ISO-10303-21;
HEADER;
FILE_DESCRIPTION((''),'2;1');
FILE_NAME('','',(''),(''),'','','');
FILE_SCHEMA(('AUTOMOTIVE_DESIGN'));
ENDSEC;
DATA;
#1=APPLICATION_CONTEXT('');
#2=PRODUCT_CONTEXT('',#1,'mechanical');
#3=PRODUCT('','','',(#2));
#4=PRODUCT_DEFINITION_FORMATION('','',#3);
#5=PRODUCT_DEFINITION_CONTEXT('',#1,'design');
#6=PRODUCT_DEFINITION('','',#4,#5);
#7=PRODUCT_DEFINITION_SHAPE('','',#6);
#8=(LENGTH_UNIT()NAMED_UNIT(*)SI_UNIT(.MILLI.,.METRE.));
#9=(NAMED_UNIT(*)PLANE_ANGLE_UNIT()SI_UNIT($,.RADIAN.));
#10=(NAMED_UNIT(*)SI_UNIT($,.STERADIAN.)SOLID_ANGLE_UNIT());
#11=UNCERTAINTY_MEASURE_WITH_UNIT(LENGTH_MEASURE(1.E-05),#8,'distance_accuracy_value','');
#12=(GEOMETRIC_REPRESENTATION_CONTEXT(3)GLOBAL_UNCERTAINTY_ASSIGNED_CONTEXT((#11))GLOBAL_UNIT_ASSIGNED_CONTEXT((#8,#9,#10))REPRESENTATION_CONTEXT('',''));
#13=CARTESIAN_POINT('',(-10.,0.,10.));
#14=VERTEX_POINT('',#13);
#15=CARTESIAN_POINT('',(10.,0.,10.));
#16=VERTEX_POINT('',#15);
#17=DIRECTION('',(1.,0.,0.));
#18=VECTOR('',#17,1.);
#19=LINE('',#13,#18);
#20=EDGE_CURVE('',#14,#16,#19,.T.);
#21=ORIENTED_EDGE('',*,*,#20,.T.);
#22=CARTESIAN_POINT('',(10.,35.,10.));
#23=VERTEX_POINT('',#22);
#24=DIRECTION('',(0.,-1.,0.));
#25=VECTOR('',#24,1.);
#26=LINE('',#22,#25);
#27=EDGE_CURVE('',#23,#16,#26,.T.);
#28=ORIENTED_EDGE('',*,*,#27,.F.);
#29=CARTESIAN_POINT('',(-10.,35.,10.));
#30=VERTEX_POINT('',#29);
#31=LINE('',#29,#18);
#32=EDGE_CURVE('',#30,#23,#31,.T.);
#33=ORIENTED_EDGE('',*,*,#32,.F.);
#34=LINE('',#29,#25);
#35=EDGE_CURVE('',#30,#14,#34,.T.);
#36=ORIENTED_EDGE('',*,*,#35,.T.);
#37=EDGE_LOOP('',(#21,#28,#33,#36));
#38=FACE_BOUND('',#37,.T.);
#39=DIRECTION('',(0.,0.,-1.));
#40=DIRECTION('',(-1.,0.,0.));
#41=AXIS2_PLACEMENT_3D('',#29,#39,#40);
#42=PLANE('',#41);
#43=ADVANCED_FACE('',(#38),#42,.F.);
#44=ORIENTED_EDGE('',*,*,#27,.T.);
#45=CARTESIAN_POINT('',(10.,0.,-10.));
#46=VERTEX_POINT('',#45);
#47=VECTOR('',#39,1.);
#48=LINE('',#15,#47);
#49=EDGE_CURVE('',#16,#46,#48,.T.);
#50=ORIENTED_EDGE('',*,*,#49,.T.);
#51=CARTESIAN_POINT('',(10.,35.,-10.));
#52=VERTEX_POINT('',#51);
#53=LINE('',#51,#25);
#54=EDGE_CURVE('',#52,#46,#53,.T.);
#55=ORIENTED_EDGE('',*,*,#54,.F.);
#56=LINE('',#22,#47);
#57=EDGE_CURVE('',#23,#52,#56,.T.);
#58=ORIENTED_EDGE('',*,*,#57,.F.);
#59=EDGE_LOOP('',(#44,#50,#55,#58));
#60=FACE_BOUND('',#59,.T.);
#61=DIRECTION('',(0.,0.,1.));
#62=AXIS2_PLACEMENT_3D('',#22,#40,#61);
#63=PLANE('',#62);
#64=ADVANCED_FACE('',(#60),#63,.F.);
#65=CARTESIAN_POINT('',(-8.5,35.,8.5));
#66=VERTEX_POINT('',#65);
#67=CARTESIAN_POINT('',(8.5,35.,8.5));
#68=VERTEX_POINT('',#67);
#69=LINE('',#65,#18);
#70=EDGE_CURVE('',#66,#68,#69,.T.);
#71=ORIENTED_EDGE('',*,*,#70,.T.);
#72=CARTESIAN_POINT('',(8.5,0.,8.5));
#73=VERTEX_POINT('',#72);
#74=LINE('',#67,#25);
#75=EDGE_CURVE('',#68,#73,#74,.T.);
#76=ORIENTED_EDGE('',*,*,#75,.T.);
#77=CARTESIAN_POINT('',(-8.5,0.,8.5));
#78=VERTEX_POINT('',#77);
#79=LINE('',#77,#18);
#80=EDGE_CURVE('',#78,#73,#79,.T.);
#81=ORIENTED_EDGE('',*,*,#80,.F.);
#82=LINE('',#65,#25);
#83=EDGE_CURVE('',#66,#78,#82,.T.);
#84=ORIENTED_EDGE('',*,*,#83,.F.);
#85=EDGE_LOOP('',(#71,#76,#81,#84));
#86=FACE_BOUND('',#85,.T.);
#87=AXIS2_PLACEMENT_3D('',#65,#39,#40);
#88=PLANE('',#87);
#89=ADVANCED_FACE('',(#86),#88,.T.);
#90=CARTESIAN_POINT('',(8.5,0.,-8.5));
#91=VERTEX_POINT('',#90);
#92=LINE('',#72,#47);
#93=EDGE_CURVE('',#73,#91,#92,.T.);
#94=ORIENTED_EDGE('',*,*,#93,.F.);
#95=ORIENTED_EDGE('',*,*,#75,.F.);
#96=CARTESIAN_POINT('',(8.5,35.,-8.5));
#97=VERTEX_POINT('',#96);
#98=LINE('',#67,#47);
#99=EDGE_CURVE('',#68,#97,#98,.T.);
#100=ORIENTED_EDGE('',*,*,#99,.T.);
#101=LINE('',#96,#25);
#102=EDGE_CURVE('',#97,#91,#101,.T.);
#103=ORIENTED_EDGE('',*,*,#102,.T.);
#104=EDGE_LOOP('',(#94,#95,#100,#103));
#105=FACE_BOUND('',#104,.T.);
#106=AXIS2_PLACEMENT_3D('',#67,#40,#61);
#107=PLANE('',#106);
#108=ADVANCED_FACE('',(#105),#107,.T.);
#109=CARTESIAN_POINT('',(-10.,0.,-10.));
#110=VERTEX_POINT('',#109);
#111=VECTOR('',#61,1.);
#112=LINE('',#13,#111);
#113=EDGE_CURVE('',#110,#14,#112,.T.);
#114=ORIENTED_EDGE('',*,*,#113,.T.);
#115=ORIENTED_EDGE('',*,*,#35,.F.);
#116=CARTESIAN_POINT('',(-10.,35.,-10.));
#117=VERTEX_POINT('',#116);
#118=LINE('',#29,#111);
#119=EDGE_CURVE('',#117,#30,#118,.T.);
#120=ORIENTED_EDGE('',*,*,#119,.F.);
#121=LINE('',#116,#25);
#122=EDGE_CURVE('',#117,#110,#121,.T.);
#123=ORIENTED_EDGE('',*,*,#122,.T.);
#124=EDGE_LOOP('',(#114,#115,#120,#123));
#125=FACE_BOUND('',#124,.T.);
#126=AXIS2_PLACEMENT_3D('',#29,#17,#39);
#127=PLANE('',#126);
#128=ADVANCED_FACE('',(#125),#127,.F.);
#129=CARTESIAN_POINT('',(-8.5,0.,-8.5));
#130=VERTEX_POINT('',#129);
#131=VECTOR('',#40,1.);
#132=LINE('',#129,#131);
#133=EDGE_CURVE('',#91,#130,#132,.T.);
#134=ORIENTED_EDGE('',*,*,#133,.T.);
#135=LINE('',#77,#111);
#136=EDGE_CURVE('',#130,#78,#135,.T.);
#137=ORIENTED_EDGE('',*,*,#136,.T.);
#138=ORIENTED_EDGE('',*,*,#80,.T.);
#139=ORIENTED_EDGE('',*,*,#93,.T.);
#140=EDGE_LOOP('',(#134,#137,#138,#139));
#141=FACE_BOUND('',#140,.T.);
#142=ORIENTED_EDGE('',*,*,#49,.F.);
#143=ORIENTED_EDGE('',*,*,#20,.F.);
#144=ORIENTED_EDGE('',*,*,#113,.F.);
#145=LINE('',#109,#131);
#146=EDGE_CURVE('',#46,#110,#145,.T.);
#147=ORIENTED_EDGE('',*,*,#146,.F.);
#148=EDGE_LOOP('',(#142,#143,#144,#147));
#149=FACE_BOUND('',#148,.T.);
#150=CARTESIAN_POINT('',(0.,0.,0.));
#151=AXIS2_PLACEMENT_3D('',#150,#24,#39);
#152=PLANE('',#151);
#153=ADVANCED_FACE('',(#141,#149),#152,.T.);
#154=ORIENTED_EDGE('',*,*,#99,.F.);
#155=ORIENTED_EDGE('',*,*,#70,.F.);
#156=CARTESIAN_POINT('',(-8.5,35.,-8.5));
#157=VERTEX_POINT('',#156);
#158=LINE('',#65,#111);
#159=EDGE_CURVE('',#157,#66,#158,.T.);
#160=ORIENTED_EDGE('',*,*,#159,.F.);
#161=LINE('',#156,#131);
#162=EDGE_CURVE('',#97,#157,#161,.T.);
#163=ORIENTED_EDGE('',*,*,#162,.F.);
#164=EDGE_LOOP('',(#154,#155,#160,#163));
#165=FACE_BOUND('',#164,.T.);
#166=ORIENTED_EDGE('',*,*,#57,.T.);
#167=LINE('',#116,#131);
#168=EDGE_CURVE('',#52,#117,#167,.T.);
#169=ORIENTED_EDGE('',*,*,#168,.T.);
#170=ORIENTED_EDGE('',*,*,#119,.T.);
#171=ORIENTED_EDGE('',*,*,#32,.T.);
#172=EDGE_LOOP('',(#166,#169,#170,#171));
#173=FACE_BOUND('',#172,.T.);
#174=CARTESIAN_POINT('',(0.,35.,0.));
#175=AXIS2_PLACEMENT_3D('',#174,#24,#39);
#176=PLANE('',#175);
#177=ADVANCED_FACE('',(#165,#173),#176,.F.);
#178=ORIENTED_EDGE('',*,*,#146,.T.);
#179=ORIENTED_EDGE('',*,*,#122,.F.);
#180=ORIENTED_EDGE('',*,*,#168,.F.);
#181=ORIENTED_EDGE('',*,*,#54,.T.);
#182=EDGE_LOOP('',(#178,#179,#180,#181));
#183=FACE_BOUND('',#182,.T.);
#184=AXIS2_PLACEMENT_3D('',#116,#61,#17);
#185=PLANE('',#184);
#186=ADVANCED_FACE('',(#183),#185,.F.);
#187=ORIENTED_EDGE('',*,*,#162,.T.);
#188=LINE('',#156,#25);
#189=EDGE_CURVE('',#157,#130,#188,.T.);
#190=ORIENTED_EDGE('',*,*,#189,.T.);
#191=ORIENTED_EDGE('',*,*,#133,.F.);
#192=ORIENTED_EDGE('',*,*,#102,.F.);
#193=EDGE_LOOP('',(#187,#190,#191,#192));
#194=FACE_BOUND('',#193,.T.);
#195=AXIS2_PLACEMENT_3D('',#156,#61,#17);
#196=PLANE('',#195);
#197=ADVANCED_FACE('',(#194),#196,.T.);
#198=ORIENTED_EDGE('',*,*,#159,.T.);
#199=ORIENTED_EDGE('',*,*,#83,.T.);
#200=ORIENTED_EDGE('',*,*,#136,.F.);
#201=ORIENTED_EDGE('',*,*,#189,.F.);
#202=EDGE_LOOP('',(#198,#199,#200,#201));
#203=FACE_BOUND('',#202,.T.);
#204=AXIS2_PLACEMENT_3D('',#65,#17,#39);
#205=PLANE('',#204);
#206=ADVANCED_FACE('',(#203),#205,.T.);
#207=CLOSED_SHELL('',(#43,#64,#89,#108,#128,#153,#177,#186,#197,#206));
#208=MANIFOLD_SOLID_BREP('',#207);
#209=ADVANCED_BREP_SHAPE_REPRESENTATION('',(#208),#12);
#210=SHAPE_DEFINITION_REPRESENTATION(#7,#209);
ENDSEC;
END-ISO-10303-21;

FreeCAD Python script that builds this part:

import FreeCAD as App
import Part
import Sketcher

V = App.Vector


def add_polygon(sketch, points):
    """Adds a closed chain of lines whose ends are joined by coincident constraints."""
    first, n = sketch.GeometryCount, len(points)
    for a, b in zip(points, points[1:] + points[:1]):
        sketch.addGeometry(Part.LineSegment(App.Vector(*a, 0), App.Vector(*b, 0)), False)
    for i in range(n):
        sketch.addConstraint(Sketcher.Constraint("Coincident", first + i, 2, first + (i + 1) % n, 1))

doc = App.newDocument("Part")
params = doc.addObject("Spreadsheet::Sheet", "Params")
for row, (alias, value) in enumerate([
    ("sketch1_width", "20 mm"),
    ("sketch1_width2", "17 mm"),
    ("pad1_length", "35 mm"),
], start=1):
    params.set(f"A{row}", alias)
    params.set(f"B{row}", "=" + value)
    params.setAlias(f"B{row}", alias)

body = doc.addObject("PartDesign::Body", "Body")

sketch1 = body.newObject("Sketcher::SketchObject", "Sketch")
sketch1.AttachmentSupport = (doc.getObject("XZ_Plane"), [""])
sketch1.MapMode = "FlatFace"
add_polygon(sketch1, [(-10, -10), (-10, 10), (10, 10), (10, -10)])
add_polygon(sketch1, [(8.5, 8.5), (-8.5, 8.5), (-8.5, -8.5), (8.5, -8.5)])
sketch1.addConstraint(Sketcher.Constraint("Vertical", 0))
sketch1.addConstraint(Sketcher.Constraint("Horizontal", 1))
sketch1.addConstraint(Sketcher.Constraint("Vertical", 2))
sketch1.addConstraint(Sketcher.Constraint("Horizontal", 3))
sketch1.addConstraint(Sketcher.Constraint("Horizontal", 4))
sketch1.addConstraint(Sketcher.Constraint("Vertical", 5))
sketch1.addConstraint(Sketcher.Constraint("Horizontal", 6))
sketch1.addConstraint(Sketcher.Constraint("Vertical", 7))
sketch1.addConstraint(Sketcher.Constraint("Symmetric", 0, 2, 2, 2, -1, 1))
sketch1.addConstraint(Sketcher.Constraint("Symmetric", 4, 2, 6, 2, -1, 1))
sketch1.addConstraint(Sketcher.Constraint("Equal", 3, 0))
sketch1.addConstraint(Sketcher.Constraint("Equal", 6, 5))
sketch1.addConstraint(Sketcher.Constraint("DistanceX", 1, 1, 1, 2, 20.0))
sketch1.addConstraint(Sketcher.Constraint("DistanceX", 4, 2, 4, 1, 17.0))
sketch1.setExpression("Constraints[20]", "Params.sketch1_width")
sketch1.setExpression("Constraints[21]", "Params.sketch1_width2")
pad1 = body.newObject("PartDesign::Pad", "Pad")
pad1.Profile = sketch1
pad1.setExpression("Length", "Params.pad1_length")
pad1.Reversed = True

doc.recompute()
